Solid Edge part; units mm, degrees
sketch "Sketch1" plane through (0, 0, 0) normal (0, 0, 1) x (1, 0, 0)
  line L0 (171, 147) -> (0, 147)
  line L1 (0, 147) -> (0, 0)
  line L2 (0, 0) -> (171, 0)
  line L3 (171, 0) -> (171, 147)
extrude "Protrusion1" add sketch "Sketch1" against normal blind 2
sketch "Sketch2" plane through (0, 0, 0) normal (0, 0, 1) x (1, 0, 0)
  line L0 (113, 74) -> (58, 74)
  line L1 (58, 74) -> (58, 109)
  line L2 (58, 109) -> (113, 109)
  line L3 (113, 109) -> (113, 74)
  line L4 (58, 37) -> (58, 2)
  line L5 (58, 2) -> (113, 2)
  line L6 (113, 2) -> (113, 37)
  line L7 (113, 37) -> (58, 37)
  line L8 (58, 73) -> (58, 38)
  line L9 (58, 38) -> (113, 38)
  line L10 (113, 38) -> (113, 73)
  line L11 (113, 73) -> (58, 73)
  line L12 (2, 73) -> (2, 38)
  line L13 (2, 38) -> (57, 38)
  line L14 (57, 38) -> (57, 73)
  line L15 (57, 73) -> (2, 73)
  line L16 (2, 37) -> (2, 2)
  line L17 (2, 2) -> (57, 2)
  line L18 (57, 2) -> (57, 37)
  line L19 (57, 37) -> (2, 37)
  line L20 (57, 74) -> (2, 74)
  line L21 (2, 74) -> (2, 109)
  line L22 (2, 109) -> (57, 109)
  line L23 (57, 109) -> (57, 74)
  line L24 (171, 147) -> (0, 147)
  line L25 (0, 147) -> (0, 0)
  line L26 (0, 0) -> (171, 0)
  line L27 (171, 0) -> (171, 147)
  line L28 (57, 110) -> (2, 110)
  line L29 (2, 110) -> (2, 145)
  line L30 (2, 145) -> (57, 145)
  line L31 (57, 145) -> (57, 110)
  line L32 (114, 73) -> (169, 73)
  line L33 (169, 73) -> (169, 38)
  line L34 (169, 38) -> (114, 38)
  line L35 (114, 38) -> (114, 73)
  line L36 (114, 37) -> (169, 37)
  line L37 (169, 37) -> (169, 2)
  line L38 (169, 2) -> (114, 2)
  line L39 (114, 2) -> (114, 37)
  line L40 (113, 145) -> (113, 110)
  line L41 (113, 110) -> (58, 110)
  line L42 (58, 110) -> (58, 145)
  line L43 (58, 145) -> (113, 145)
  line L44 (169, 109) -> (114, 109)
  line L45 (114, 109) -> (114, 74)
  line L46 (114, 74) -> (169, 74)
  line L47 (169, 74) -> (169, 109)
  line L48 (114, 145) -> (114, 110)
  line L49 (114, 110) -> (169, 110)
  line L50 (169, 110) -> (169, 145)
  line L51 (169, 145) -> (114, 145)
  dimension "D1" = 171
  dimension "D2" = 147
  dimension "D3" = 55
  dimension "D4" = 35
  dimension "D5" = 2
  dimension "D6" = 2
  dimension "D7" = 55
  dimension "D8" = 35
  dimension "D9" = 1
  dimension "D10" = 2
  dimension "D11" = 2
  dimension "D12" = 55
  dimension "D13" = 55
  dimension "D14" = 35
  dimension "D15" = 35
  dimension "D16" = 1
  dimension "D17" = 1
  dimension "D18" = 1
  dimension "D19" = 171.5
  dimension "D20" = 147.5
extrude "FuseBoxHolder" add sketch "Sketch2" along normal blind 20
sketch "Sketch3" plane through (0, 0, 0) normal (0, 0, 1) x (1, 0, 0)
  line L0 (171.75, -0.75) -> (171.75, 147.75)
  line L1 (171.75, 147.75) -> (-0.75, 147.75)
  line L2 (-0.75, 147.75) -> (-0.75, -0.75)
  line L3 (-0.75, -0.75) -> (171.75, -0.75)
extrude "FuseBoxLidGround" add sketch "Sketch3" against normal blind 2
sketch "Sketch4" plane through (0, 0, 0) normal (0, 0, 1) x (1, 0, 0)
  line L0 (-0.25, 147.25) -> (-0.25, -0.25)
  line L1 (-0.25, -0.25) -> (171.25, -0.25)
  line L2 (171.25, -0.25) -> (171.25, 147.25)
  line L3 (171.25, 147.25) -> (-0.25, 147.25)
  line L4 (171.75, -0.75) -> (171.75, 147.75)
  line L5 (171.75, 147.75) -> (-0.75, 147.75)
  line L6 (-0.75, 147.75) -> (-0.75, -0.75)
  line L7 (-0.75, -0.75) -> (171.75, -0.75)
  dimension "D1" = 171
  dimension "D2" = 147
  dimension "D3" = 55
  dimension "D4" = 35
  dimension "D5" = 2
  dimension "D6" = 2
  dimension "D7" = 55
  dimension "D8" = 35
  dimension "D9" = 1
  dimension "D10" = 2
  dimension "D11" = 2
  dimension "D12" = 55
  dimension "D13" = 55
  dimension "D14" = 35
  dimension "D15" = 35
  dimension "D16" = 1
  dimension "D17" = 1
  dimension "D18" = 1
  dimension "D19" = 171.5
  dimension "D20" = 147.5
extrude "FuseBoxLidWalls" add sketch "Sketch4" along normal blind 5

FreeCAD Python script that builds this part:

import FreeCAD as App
import Part
import Sketcher

V = App.Vector


def add_polygon(sketch, points):
    """Adds a closed chain of lines whose ends are joined by coincident constraints."""
    first, n = sketch.GeometryCount, len(points)
    for a, b in zip(points, points[1:] + points[:1]):
        sketch.addGeometry(Part.LineSegment(App.Vector(*a, 0), App.Vector(*b, 0)), False)
    for i in range(n):
        sketch.addConstraint(Sketcher.Constraint("Coincident", first + i, 2, first + (i + 1) % n, 1))

doc = App.newDocument("Part")
params = doc.addObject("Spreadsheet::Sheet", "Params")
for row, (alias, value) in enumerate([
    ("sketch1_width", "171 mm"),
    ("sketch1_height", "147 mm"),
    ("pad1_length", "2 mm"),
    ("sketch2_width", "171 mm"),
    ("sketch2_width2", "55 mm"),
    ("sketch2_height", "147 mm"),
    ("sketch2_height2", "35 mm"),
    ("pad2_length", "20 mm"),
    ("sketch3_width", "172.5 mm"),
    ("sketch3_height", "148.5 mm"),
    ("pad3_length", "2 mm"),
    ("sketch4_width", "172.5 mm"),
    ("sketch4_width2", "171.5 mm"),
    ("sketch4_height", "148.5 mm"),
    ("sketch4_height2", "147.5 mm"),
    ("pad4_length", "5 mm"),
], start=1):
    params.set(f"A{row}", alias)
    params.set(f"B{row}", "=" + value)
    params.setAlias(f"B{row}", alias)

body = doc.addObject("PartDesign::Body", "Body")

# Sketch on XY plane
sketch1 = body.newObject("Sketcher::SketchObject", "Sketch")
sketch1.AttachmentSupport = (doc.getObject("XY_Plane"), [""])
sketch1.MapMode = "FlatFace"
add_polygon(sketch1, [(171, 0), (171, 147), (0, 147), (0, 0)])  # lines 0-3
sketch1.addConstraint(Sketcher.Constraint("Vertical", 0))
sketch1.addConstraint(Sketcher.Constraint("Horizontal", 1))
sketch1.addConstraint(Sketcher.Constraint("Vertical", 2))
sketch1.addConstraint(Sketcher.Constraint("Horizontal", 3))
sketch1.addConstraint(Sketcher.Constraint("Coincident", 2, 2, -1, 1))
sketch1.addConstraint(Sketcher.Constraint("DistanceX", 1, 2, 1, 1, 171.0))
sketch1.addConstraint(Sketcher.Constraint("DistanceY", 0, 1, 0, 2, 147.0))
sketch1.setExpression("Constraints[9]", "Params.sketch1_width")
sketch1.setExpression("Constraints[10]", "Params.sketch1_height")
pad1 = body.newObject("PartDesign::Pad", "Pad")
pad1.Profile = sketch1
pad1.setExpression("Length", "Params.pad1_length")
pad1.Reversed = True

# Sketch on XY plane
sketch2 = body.newObject("Sketcher::SketchObject", "Sketch001")
sketch2.AttachmentSupport = (doc.getObject("XY_Plane"), [""])
sketch2.MapMode = "FlatFace"
add_polygon(sketch2, [(171, 0), (171, 147), (0, 147), (0, 0)])  # lines 0-3
add_polygon(sketch2, [(2, 2), (2, 37), (57, 37), (57, 2)])  # lines 4-7
add_polygon(sketch2, [(2, 38), (2, 73), (57, 73), (57, 38)])  # lines 8-11
add_polygon(sketch2, [(58, 2), (58, 37), (113, 37), (113, 2)])  # lines 12-15
add_polygon(sketch2, [(114, 2), (114, 37), (169, 37), (169, 2)])  # lines 16-19
add_polygon(sketch2, [(58, 38), (58, 73), (113, 73), (113, 38)])  # lines 20-23
add_polygon(sketch2, [(114, 38), (114, 73), (169, 73), (169, 38)])  # lines 24-27
add_polygon(sketch2, [(57, 109), (57, 74), (2, 74), (2, 109)])  # lines 28-31
add_polygon(sketch2, [(57, 145), (57, 110), (2, 110), (2, 145)])  # lines 32-35
add_polygon(sketch2, [(113, 109), (113, 74), (58, 74), (58, 109)])  # lines 36-39
add_polygon(sketch2, [(114, 109), (169, 109), (169, 74), (114, 74)])  # lines 40-43
add_polygon(sketch2, [(58, 145), (113, 145), (113, 110), (58, 110)])  # lines 44-47
add_polygon(sketch2, [(114, 110), (114, 145), (169, 145), (169, 110)])  # lines 48-51
sketch2.addConstraint(Sketcher.Constraint("Vertical", 0))
sketch2.addConstraint(Sketcher.Constraint("Horizontal", 1))
sketch2.addConstraint(Sketcher.Constraint("Vertical", 2))
sketch2.addConstraint(Sketcher.Constraint("Horizontal", 3))
sketch2.addConstraint(Sketcher.Constraint("Vertical", 4))
sketch2.addConstraint(Sketcher.Constraint("Horizontal", 5))
sketch2.addConstraint(Sketcher.Constraint("Vertical", 6))
sketch2.addConstraint(Sketcher.Constraint("Horizontal", 7))
sketch2.addConstraint(Sketcher.Constraint("Vertical", 8))
sketch2.addConstraint(Sketcher.Constraint("Horizontal", 9))
sketch2.addConstraint(Sketcher.Constraint("Vertical", 10))
sketch2.addConstraint(Sketcher.Constraint("Horizontal", 11))
sketch2.addConstraint(Sketcher.Constraint("Vertical", 12))
sketch2.addConstraint(Sketcher.Constraint("Horizontal", 13))
sketch2.addConstraint(Sketcher.Constraint("Vertical", 14))
sketch2.addConstraint(Sketcher.Constraint("Horizontal", 15))
sketch2.addConstraint(Sketcher.Constraint("Vertical", 16))
sketch2.addConstraint(Sketcher.Constraint("Horizontal", 17))
sketch2.addConstraint(Sketcher.Constraint("Vertical", 18))
sketch2.addConstraint(Sketcher.Constraint("Horizontal", 19))
sketch2.addConstraint(Sketcher.Constraint("Vertical", 20))
sketch2.addConstraint(Sketcher.Constraint("Horizontal", 21))
sketch2.addConstraint(Sketcher.Constraint("Vertical", 22))
sketch2.addConstraint(Sketcher.Constraint("Horizontal", 23))
sketch2.addConstraint(Sketcher.Constraint("Vertical", 24))
sketch2.addConstraint(Sketcher.Constraint("Horizontal", 25))
sketch2.addConstraint(Sketcher.Constraint("Vertical", 26))
sketch2.addConstraint(Sketcher.Constraint("Horizontal", 27))
sketch2.addConstraint(Sketcher.Constraint("Vertical", 28))
sketch2.addConstraint(Sketcher.Constraint("Horizontal", 29))
sketch2.addConstraint(Sketcher.Constraint("Vertical", 30))
sketch2.addConstraint(Sketcher.Constraint("Horizontal", 31))
sketch2.addConstraint(Sketcher.Constraint("Vertical", 32))
sketch2.addConstraint(Sketcher.Constraint("Horizontal", 33))
sketch2.addConstraint(Sketcher.Constraint("Vertical", 34))
sketch2.addConstraint(Sketcher.Constraint("Horizontal", 35))
sketch2.addConstraint(Sketcher.Constraint("Vertical", 36))
sketch2.addConstraint(Sketcher.Constraint("Horizontal", 37))
sketch2.addConstraint(Sketcher.Constraint("Vertical", 38))
sketch2.addConstraint(Sketcher.Constraint("Horizontal", 39))
sketch2.addConstraint(Sketcher.Constraint("Horizontal", 40))
sketch2.addConstraint(Sketcher.Constraint("Vertical", 41))
sketch2.addConstraint(Sketcher.Constraint("Horizontal", 42))
sketch2.addConstraint(Sketcher.Constraint("Vertical", 43))
sketch2.addConstraint(Sketcher.Constraint("Horizontal", 44))
sketch2.addConstraint(Sketcher.Constraint("Vertical", 45))
sketch2.addConstraint(Sketcher.Constraint("Horizontal", 46))
sketch2.addConstraint(Sketcher.Constraint("Vertical", 47))
sketch2.addConstraint(Sketcher.Constraint("Vertical", 48))
sketch2.addConstraint(Sketcher.Constraint("Horizontal", 49))
sketch2.addConstraint(Sketcher.Constraint("Vertical", 50))
sketch2.addConstraint(Sketcher.Constraint("Horizontal", 51))
sketch2.addConstraint(Sketcher.Constraint("Coincident", 2, 2, -1, 1))
sketch2.addConstraint(Sketcher.Constraint("Horizontal", 5, 2, 12, 2))
sketch2.addConstraint(Sketcher.Constraint("Horizontal", 7, 2, 14, 2))
sketch2.addConstraint(Sketcher.Constraint("Horizontal", 13, 2, 16, 2))
sketch2.addConstraint(Sketcher.Constraint("Horizontal", 15, 2, 18, 2))
sketch2.addConstraint(Sketcher.Constraint("Horizontal", 9, 2, 20, 2))
sketch2.addConstraint(Sketcher.Constraint("Horizontal", 11, 2, 22, 2))
sketch2.addConstraint(Sketcher.Constraint("Horizontal", 21, 2, 24, 2))
sketch2.addConstraint(Sketcher.Constraint("Horizontal", 23, 2, 26, 2))
sketch2.addConstraint(Sketcher.Constraint("Horizontal", 29, 2, 36, 2))
sketch2.addConstraint(Sketcher.Constraint("Horizontal", 31, 2, 38, 2))
sketch2.addConstraint(Sketcher.Constraint("Horizontal", 39, 2, 40, 2))
sketch2.addConstraint(Sketcher.Constraint("Horizontal", 37, 2, 41, 2))
sketch2.addConstraint(Sketcher.Constraint("Horizontal", 35, 2, 44, 2))
sketch2.addConstraint(Sketcher.Constraint("Horizontal", 33, 2, 45, 2))
sketch2.addConstraint(Sketcher.Constraint("Horizontal", 47, 2, 48, 2))
sketch2.addConstraint(Sketcher.Constraint("Horizontal", 46, 2, 50, 2))
sketch2.addConstraint(Sketcher.Constraint("Vertical", 7, 2, 8, 2))
sketch2.addConstraint(Sketcher.Constraint("Vertical", 6, 2, 9, 2))
sketch2.addConstraint(Sketcher.Constraint("Vertical", 15, 2, 20, 2))
sketch2.addConstraint(Sketcher.Constraint("Vertical", 14, 2, 21, 2))
sketch2.addConstraint(Sketcher.Constraint("Vertical", 19, 2, 24, 2))
sketch2.addConstraint(Sketcher.Constraint("Vertical", 18, 2, 25, 2))
sketch2.addConstraint(Sketcher.Constraint("Vertical", 10, 2, 28, 2))
sketch2.addConstraint(Sketcher.Constraint("Vertical", 11, 2, 29, 2))
sketch2.addConstraint(Sketcher.Constraint("Vertical", 31, 2, 32, 2))
sketch2.addConstraint(Sketcher.Constraint("Vertical", 30, 2, 33, 2))
sketch2.addConstraint(Sketcher.Constraint("Vertical", 22, 2, 36, 2))
sketch2.addConstraint(Sketcher.Constraint("Vertical", 23, 2, 37, 2))
sketch2.addConstraint(Sketcher.Constraint("Vertical", 26, 2, 40, 2))
sketch2.addConstraint(Sketcher.Constraint("Vertical", 27, 2, 42, 2))
sketch2.addConstraint(Sketcher.Constraint("Vertical", 39, 2, 44, 2))
sketch2.addConstraint(Sketcher.Constraint("Vertical", 38, 2, 46, 2))
sketch2.addConstraint(Sketcher.Constraint("Vertical", 43, 2, 48, 2))
sketch2.addConstraint(Sketcher.Constraint("Vertical", 41, 2, 49, 2))
sketch2.addConstraint(Sketcher.Constraint("Equal", 11, 13))
sketch2.addConstraint(Sketcher.Constraint("Equal", 15, 17))
sketch2.addConstraint(Sketcher.Constraint("Equal", 6, 8))
sketch2.addConstraint(Sketcher.Constraint("Equal", 26, 28))
sketch2.addConstraint(Sketcher.Constraint("Equal", 30, 32))
sketch2.addConstraint(Sketcher.Constraint("DistanceX", 1, 2, 1, 1, 171.0))
sketch2.addConstraint(Sketcher.Constraint("DistanceX", 5, 1, 5, 2, 55.0))
sketch2.addConstraint(Sketcher.Constraint("DistanceY", 0, 1, 0, 2, 147.0))
sketch2.addConstraint(Sketcher.Constraint("DistanceY", 4, 1, 4, 2, 35.0))
sketch2.addConstraint(Sketcher.Constraint("DistanceX", -1, 1, 4, 2, 2.0))
sketch2.addConstraint(Sketcher.Constraint("DistanceY", -1, 1, 4, 2, 37.0))
sketch2.addConstraint(Sketcher.Constraint("DistanceY", -1, 1, 8, 2, 73.0))
sketch2.addConstraint(Sketcher.Constraint("DistanceX", -1, 1, 12, 2, 58.0))
sketch2.addConstraint(Sketcher.Constraint("DistanceX", -1, 1, 16, 2, 114.0))
sketch2.addConstraint(Sketcher.Constraint("DistanceY", -1, 1, 28, 2, 74.0))
sketch2.addConstraint(Sketcher.Constraint("DistanceY", -1, 1, 32, 2, 110.0))
sketch2.setExpression("Constraints[144]", "Params.sketch2_width")
sketch2.setExpression("Constraints[145]", "Params.sketch2_width2")
sketch2.setExpression("Constraints[146]", "Params.sketch2_height")
sketch2.setExpression("Constraints[147]", "Params.sketch2_height2")
pad2 = body.newObject("PartDesign::Pad", "Pad001")
pad2.Profile = sketch2
pad2.setExpression("Length", "Params.pad2_length")

# Sketch on XY plane
sketch3 = body.newObject("Sketcher::SketchObject", "Sketch002")
sketch3.AttachmentSupport = (doc.getObject("XY_Plane"), [""])
sketch3.MapMode = "FlatFace"
add_polygon(sketch3, [(-1, -1), (172, -1), (172, 148), (-1, 148)])  # lines 0-3
sketch3.addConstraint(Sketcher.Constraint("Horizontal", 0))
sketch3.addConstraint(Sketcher.Constraint("Vertical", 1))
sketch3.addConstraint(Sketcher.Constraint("Horizontal", 2))
sketch3.addConstraint(Sketcher.Constraint("Vertical", 3))
sketch3.addConstraint(Sketcher.Constraint("DistanceX", 0, 1, 0, 2, 172.5))
sketch3.addConstraint(Sketcher.Constraint("DistanceY", 1, 1, 1, 2, 148.5))
sketch3.addConstraint(Sketcher.Constraint("DistanceX", -1, 1, 0, 2, 171.75))
sketch3.addConstraint(Sketcher.Constraint("DistanceY", 0, 2, -1, 1, 0.75))
sketch3.setExpression("Constraints[8]", "Params.sketch3_width")
sketch3.setExpression("Constraints[9]", "Params.sketch3_height")
pad3 = body.newObject("PartDesign::Pad", "Pad002")
pad3.Profile = sketch3
pad3.setExpression("Length", "Params.pad3_length")
pad3.Reversed = True

# Sketch on XY plane
sketch4 = body.newObject("Sketcher::SketchObject", "Sketch003")
sketch4.AttachmentSupport = (doc.getObject("XY_Plane"), [""])
sketch4.MapMode = "FlatFace"
add_polygon(sketch4, [(-1, -1), (172, -1), (172, 148), (-1, 148)])  # lines 0-3
add_polygon(sketch4, [(0, 0), (0, 147), (171, 147), (171, 0)])  # lines 4-7
sketch4.addConstraint(Sketcher.Constraint("Horizontal", 0))
sketch4.addConstraint(Sketcher.Constraint("Vertical", 1))
sketch4.addConstraint(Sketcher.Constraint("Horizontal", 2))
sketch4.addConstraint(Sketcher.Constraint("Vertical", 3))
sketch4.addConstraint(Sketcher.Constraint("Vertical", 4))
sketch4.addConstraint(Sketcher.Constraint("Horizontal", 5))
sketch4.addConstraint(Sketcher.Constraint("Vertical", 6))
sketch4.addConstraint(Sketcher.Constraint("Horizontal", 7))
sketch4.addConstraint(Sketcher.Constraint("DistanceX", 0, 1, 0, 2, 172.5))
sketch4.addConstraint(Sketcher.Constraint("DistanceX", 5, 1, 5, 2, 171.5))
sketch4.addConstraint(Sketcher.Constraint("DistanceY", 1, 1, 1, 2, 148.5))
sketch4.addConstraint(Sketcher.Constraint("DistanceY", 4, 1, 4, 2, 147.5))
sketch4.addConstraint(Sketcher.Constraint("DistanceY", 3, 2, 4, 2, 148.0))
sketch4.addConstraint(Sketcher.Constraint("DistanceX", 4, 2, 1, 2, 172.0))
sketch4.addConstraint(Sketcher.Constraint("DistanceX", -1, 1, 0, 2, 171.75))
sketch4.addConstraint(Sketcher.Constraint("DistanceY", 0, 2, -1, 1, 0.75))
sketch4.setExpression("Constraints[16]", "Params.sketch4_width")
sketch4.setExpression("Constraints[17]", "Params.sketch4_width2")
sketch4.setExpression("Constraints[18]", "Params.sketch4_height")
sketch4.setExpression("Constraints[19]", "Params.sketch4_height2")
pad4 = body.newObject("PartDesign::Pad", "Pad003")
pad4.Profile = sketch4
pad4.setExpression("Length", "Params.pad4_length")

doc.recompute()
